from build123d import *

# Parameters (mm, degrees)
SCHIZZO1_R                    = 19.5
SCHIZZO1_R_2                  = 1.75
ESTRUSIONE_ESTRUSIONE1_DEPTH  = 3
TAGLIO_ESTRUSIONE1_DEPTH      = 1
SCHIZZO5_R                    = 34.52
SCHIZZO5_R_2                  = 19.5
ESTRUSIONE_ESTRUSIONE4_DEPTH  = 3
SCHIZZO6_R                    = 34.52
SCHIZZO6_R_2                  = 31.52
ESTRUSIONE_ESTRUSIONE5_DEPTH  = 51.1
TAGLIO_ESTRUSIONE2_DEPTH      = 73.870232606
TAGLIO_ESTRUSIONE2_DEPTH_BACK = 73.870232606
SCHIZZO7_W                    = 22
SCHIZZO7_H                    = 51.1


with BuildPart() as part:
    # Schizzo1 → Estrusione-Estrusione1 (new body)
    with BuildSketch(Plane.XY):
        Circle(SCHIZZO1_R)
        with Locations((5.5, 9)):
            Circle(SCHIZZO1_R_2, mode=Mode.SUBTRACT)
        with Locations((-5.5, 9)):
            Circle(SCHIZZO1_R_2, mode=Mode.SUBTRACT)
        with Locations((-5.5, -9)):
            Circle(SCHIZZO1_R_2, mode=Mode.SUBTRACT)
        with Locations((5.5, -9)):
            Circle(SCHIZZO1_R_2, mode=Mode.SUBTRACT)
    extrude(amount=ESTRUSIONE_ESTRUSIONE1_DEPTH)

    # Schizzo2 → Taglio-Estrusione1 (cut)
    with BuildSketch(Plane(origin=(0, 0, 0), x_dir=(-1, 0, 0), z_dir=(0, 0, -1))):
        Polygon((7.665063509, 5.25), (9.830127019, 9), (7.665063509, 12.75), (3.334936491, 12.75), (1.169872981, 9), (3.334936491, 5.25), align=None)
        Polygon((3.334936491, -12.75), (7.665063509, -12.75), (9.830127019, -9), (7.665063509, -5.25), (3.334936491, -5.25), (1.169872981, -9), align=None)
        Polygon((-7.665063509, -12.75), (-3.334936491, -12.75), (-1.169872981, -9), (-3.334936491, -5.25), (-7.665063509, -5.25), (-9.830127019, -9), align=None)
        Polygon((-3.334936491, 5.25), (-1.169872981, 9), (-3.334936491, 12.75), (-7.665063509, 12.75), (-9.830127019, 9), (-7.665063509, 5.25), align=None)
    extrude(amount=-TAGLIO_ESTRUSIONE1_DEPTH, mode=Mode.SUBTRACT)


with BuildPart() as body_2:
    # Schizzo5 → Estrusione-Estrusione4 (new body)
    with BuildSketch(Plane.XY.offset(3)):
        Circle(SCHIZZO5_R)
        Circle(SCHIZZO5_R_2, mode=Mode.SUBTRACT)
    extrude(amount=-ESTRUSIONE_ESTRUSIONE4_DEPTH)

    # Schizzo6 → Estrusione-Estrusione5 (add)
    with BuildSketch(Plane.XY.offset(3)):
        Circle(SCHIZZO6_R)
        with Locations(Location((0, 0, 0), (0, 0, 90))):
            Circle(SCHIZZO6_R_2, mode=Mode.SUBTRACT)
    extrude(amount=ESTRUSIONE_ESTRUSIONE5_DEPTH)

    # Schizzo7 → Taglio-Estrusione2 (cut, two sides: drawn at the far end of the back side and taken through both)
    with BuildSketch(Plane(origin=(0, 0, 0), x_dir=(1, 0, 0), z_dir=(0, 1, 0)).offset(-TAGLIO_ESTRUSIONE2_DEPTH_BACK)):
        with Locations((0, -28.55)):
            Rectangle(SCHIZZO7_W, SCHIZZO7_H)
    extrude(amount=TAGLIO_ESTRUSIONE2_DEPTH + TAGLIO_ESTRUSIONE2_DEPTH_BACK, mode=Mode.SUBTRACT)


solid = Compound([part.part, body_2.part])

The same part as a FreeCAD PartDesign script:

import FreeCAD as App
import Part
import Sketcher

V = App.Vector
Q = App.Units.Quantity


def add_polygon(sketch, points):
    """Adds a closed chain of lines whose ends are joined by coincident constraints."""
    first, n = sketch.GeometryCount, len(points)
    for a, b in zip(points, points[1:] + points[:1]):
        sketch.addGeometry(Part.LineSegment(App.Vector(*a, 0), App.Vector(*b, 0)), False)
    for i in range(n):
        sketch.addConstraint(Sketcher.Constraint("Coincident", first + i, 2, first + (i + 1) % n, 1))

doc = App.newDocument("Part")
body = doc.addObject("PartDesign::Body", "Body")

# Sketch on XY plane
sketch1 = body.newObject("Sketcher::SketchObject", "Sketch")
sketch1.AttachmentSupport = (doc.getObject("XY_Plane"), [""])
sketch1.MapMode = "FlatFace"
sketch1.addGeometry([
    Part.Circle(V(0, 0, 0), V(0, 0, 1), 19.5),  # 0
    Part.Circle(V(-5.5, -9, 0), V(0, 0, 1), 1.8),  # 1
    Part.Circle(V(5.5, -9, 0), V(0, 0, 1), 1.8),  # 2
    Part.Circle(V(-5.5, 9, 0), V(0, 0, 1), 1.8),  # 3
    Part.Circle(V(5.5, 9, 0), V(0, 0, 1), 1.8),  # 4
], False)
sketch1.addConstraint([
    Sketcher.Constraint("Coincident", 0, 3, -1, 1),
    Sketcher.Constraint("Equal", 1, 2),
    Sketcher.Constraint("Equal", 2, 3),
    Sketcher.Constraint("Equal", 3, 4),
    Sketcher.Constraint("Symmetric", 2, 3, 3, 3, -1, 1),
    Sketcher.Constraint("Symmetric", 1, 3, 4, 3, -1, 1),
    Sketcher.Constraint("Symmetric", 1, 3, 2, 3, -2),
    Sketcher.Constraint("Diameter", 0, Q("39 mm")),
    Sketcher.Constraint("Diameter", 1, Q("3.5 mm")),
    Sketcher.Constraint("DistanceY", 1, 3, -1, 1, Q("9 mm")),
    Sketcher.Constraint("DistanceX", 1, 3, 2, 3, Q("11 mm")),
])
pad1 = body.newObject("PartDesign::Pad", "Pad")
pad1.Profile = sketch1
pad1.Length = 3

# Sketch on XY plane
sketch2 = body.newObject("Sketcher::SketchObject", "Sketch001")
sketch2.AttachmentSupport = (doc.getObject("XY_Plane"), [""])
sketch2.MapMode = "FlatFace"
add_polygon(sketch2, [(-7.7, 5.2), (-9.8, 9), (-7.7, 12.8), (-3.3, 12.8), (-1.2, 9), (-3.3, 5.2)])  # lines 0-5
add_polygon(sketch2, [(-3.3, -12.8), (-7.7, -12.8), (-9.8, -9), (-7.7, -5.2), (-3.3, -5.2), (-1.2, -9)])  # lines 6-11
add_polygon(sketch2, [(7.7, -12.8), (3.3, -12.8), (1.2, -9), (3.3, -5.2), (7.7, -5.2), (9.8, -9)])  # lines 12-17
add_polygon(sketch2, [(3.3, 5.2), (1.2, 9), (3.3, 12.8), (7.7, 12.8), (9.8, 9), (7.7, 5.2)])  # lines 18-23
sketch2.addConstraint([
    Sketcher.Constraint("Horizontal", 2),
    Sketcher.Constraint("Horizontal", 5),
    Sketcher.Constraint("Horizontal", 6),
    Sketcher.Constraint("Horizontal", 9),
    Sketcher.Constraint("Horizontal", 12),
    Sketcher.Constraint("Horizontal", 15),
    Sketcher.Constraint("Horizontal", 20),
    Sketcher.Constraint("Horizontal", 23),
    Sketcher.Constraint("Symmetric", 2, 2, 12, 2, -1, 1),
    Sketcher.Constraint("Symmetric", 3, 2, 13, 2, -1, 1),
    Sketcher.Constraint("Symmetric", 4, 2, 14, 2, -1, 1),
    Sketcher.Constraint("Symmetric", 0, 2, 16, 2, -1, 1),
    Sketcher.Constraint("Symmetric", 10, 2, 18, 2, -1, 1),
    Sketcher.Constraint("Symmetric", 11, 2, 19, 2, -1, 1),
    Sketcher.Constraint("Symmetric", 7, 2, 21, 2, -1, 1),
    Sketcher.Constraint("Symmetric", 8, 2, 22, 2, -1, 1),
    Sketcher.Constraint("Symmetric", 11, 2, 12, 2, -2),
    Sketcher.Constraint("Symmetric", 10, 2, 13, 2, -2),
    Sketcher.Constraint("Symmetric", 9, 2, 14, 2, -2),
    Sketcher.Constraint("Symmetric", 7, 2, 16, 2, -2),
    Sketcher.Constraint("Parallel", 0, 3),
    Sketcher.Constraint("Parallel", 1, 4),
    Sketcher.Constraint("Parallel", 3, 7),
    Sketcher.Constraint("Parallel", 4, 8),
    Sketcher.Constraint("Parallel", 7, 10),
    Sketcher.Constraint("Parallel", 13, 16),
    Sketcher.Constraint("Parallel", 14, 17),
    Sketcher.Constraint("Parallel", 16, 18),
    Sketcher.Constraint("Parallel", 18, 21),
    Sketcher.Constraint("Horizontal", 0, 2, 3, 2),
    Sketcher.Constraint("Vertical", 2, 2, 4, 2),
    Sketcher.Constraint("Angle", 0, Q("120 deg")),
    Sketcher.Constraint("DistanceY", -1, 1, 0, 2, Q("9 mm")),
    Sketcher.Constraint("DistanceX", 6, 2, 12, 2, Q("11 mm")),
    Sketcher.Constraint("DistanceY", 4, 2, 2, 2, Q("7.5 mm")),
    Sketcher.Constraint("DistanceX", 2, 1, 2, 2, Q("4.330127 mm")),
])
pocket1 = body.newObject("PartDesign::Pocket", "Pocket")
pocket1.Profile = sketch2
pocket1.Length = 1
pocket1.Reversed = True
body2 = doc.addObject("PartDesign::Body", "Body001")

# Sketch on XY plane
sketch3 = body2.newObject("Sketcher::SketchObject", "Sketch002")
sketch3.AttachmentSupport = (doc.getObject("XY_Plane001"), [""])
sketch3.MapMode = "FlatFace"
sketch3.AttachmentOffset = App.Placement(V(0, 0, 3), App.Rotation())
sketch3.addGeometry([
    Part.Circle(V(0, 0, 0), V(0, 0, 1), 35),
    Part.Circle(V(0, 0, 0), V(0, 0, 1), 20),
], False)
sketch3.addConstraint([
    Sketcher.Constraint("Coincident", 0, 3, -1, 1),
    Sketcher.Constraint("Coincident", 1, 3, -1, 1),
    Sketcher.Constraint("Diameter", 1, Q("39 mm")),
    Sketcher.Constraint("Diameter", 0, Q("69.04 mm")),
])
pad2 = body2.newObject("PartDesign::Pad", "Pad001")
pad2.Profile = sketch3
pad2.Length = 3
pad2.Reversed = True

# Sketch on XY plane
sketch4 = body2.newObject("Sketcher::SketchObject", "Sketch003")
sketch4.AttachmentSupport = (doc.getObject("XY_Plane001"), [""])
sketch4.MapMode = "FlatFace"
sketch4.AttachmentOffset = App.Placement(V(0, 0, 3), App.Rotation())
sketch4.addGeometry([
    Part.Circle(V(0, 0, 0), V(0, 0, 1), 35),
    Part.Circle(V(0, 0, 0), V(0, 0, 1), 32),
], False)
sketch4.addConstraint([
    Sketcher.Constraint("Coincident", 0, 3, -1, 1),
    Sketcher.Constraint("Coincident", 1, 3, -1, 1),
    Sketcher.Constraint("Diameter", 0, Q("69.04 mm")),
    Sketcher.Constraint("Diameter", 1, Q("63.04 mm")),
])
pad3 = body2.newObject("PartDesign::Pad", "Pad002")
pad3.Profile = sketch4
pad3.Length = 51.1

# Sketch on XZ plane
sketch5 = body2.newObject("Sketcher::SketchObject", "Sketch004")
sketch5.AttachmentSupport = (doc.getObject("XZ_Plane001"), [""])
sketch5.MapMode = "FlatFace"
add_polygon(sketch5, [(-11, 3), (-11, 54), (11, 54), (11, 3)])  # lines 0-3
sketch5.addConstraint([
    Sketcher.Constraint("Vertical", 0),
    Sketcher.Constraint("Horizontal", 1),
    Sketcher.Constraint("Vertical", 2),
    Sketcher.Constraint("Horizontal", 3),
    Sketcher.Constraint("DistanceX", 1, 1, 1, 2, Q("22 mm")),
    Sketcher.Constraint("DistanceY", 0, 1, 0, 2, Q("51.1 mm")),
    Sketcher.Constraint("DistanceX", 0, 2, -1, 1, Q("11 mm")),
    Sketcher.Constraint("DistanceY", -1, 1, 2, 2, Q("3 mm")),
])
pocket2 = body2.newObject("PartDesign::Pocket", "Pocket001")
pocket2.Profile = sketch5
pocket2.Type = "ThroughAll"
pocket2.Midplane = True

doc.recompute()
